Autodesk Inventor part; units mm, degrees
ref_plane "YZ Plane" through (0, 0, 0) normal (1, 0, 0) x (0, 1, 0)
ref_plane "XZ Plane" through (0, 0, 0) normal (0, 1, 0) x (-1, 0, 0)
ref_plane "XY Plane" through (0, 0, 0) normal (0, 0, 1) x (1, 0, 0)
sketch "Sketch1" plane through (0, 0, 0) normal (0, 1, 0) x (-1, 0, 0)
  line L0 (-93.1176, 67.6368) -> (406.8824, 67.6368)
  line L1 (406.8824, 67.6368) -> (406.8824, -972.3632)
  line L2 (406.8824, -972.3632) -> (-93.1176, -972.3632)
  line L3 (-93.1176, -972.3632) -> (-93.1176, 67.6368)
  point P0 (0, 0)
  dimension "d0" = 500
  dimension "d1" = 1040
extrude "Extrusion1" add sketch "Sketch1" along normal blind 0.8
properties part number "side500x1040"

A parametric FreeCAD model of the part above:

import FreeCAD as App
import Part
import Sketcher
Q = App.Units.Quantity


def add_polygon(sketch, points):
    """Adds a closed chain of lines whose ends are joined by coincident constraints."""
    first, n = sketch.GeometryCount, len(points)
    for a, b in zip(points, points[1:] + points[:1]):
        sketch.addGeometry(Part.LineSegment(App.Vector(*a, 0), App.Vector(*b, 0)), False)
    for i in range(n):
        sketch.addConstraint(Sketcher.Constraint("Coincident", first + i, 2, first + (i + 1) % n, 1))

doc = App.newDocument("Part")
body = doc.addObject("PartDesign::Body", "Body")

sketch1 = body.newObject("Sketcher::SketchObject", "Sketch")
sketch1.AttachmentSupport = (doc.getObject("XZ_Plane"), [""])
sketch1.MapMode = "FlatFace"
add_polygon(sketch1, [(-407, 68), (93, 68), (93, -972), (-407, -972)])
sketch1.addConstraint([
    Sketcher.Constraint("Horizontal", 0),
    Sketcher.Constraint("Vertical", 1),
    Sketcher.Constraint("Horizontal", 2),
    Sketcher.Constraint("Vertical", 3),
    Sketcher.Constraint("DistanceX", 0, 1, 0, 2, Q("500 mm")),
    Sketcher.Constraint("DistanceY", 1, 2, 1, 1, Q("1040 mm")),
    Sketcher.Constraint("DistanceX", -1, 1, 0, 2, Q("93.1176 mm")),
    Sketcher.Constraint("DistanceY", -1, 1, 0, 2, Q("67.6368 mm")),
])
pad1 = body.newObject("PartDesign::Pad", "Pad")
pad1.Profile = sketch1
pad1.Length = 0.8
pad1.Reversed = True

doc.recompute()
